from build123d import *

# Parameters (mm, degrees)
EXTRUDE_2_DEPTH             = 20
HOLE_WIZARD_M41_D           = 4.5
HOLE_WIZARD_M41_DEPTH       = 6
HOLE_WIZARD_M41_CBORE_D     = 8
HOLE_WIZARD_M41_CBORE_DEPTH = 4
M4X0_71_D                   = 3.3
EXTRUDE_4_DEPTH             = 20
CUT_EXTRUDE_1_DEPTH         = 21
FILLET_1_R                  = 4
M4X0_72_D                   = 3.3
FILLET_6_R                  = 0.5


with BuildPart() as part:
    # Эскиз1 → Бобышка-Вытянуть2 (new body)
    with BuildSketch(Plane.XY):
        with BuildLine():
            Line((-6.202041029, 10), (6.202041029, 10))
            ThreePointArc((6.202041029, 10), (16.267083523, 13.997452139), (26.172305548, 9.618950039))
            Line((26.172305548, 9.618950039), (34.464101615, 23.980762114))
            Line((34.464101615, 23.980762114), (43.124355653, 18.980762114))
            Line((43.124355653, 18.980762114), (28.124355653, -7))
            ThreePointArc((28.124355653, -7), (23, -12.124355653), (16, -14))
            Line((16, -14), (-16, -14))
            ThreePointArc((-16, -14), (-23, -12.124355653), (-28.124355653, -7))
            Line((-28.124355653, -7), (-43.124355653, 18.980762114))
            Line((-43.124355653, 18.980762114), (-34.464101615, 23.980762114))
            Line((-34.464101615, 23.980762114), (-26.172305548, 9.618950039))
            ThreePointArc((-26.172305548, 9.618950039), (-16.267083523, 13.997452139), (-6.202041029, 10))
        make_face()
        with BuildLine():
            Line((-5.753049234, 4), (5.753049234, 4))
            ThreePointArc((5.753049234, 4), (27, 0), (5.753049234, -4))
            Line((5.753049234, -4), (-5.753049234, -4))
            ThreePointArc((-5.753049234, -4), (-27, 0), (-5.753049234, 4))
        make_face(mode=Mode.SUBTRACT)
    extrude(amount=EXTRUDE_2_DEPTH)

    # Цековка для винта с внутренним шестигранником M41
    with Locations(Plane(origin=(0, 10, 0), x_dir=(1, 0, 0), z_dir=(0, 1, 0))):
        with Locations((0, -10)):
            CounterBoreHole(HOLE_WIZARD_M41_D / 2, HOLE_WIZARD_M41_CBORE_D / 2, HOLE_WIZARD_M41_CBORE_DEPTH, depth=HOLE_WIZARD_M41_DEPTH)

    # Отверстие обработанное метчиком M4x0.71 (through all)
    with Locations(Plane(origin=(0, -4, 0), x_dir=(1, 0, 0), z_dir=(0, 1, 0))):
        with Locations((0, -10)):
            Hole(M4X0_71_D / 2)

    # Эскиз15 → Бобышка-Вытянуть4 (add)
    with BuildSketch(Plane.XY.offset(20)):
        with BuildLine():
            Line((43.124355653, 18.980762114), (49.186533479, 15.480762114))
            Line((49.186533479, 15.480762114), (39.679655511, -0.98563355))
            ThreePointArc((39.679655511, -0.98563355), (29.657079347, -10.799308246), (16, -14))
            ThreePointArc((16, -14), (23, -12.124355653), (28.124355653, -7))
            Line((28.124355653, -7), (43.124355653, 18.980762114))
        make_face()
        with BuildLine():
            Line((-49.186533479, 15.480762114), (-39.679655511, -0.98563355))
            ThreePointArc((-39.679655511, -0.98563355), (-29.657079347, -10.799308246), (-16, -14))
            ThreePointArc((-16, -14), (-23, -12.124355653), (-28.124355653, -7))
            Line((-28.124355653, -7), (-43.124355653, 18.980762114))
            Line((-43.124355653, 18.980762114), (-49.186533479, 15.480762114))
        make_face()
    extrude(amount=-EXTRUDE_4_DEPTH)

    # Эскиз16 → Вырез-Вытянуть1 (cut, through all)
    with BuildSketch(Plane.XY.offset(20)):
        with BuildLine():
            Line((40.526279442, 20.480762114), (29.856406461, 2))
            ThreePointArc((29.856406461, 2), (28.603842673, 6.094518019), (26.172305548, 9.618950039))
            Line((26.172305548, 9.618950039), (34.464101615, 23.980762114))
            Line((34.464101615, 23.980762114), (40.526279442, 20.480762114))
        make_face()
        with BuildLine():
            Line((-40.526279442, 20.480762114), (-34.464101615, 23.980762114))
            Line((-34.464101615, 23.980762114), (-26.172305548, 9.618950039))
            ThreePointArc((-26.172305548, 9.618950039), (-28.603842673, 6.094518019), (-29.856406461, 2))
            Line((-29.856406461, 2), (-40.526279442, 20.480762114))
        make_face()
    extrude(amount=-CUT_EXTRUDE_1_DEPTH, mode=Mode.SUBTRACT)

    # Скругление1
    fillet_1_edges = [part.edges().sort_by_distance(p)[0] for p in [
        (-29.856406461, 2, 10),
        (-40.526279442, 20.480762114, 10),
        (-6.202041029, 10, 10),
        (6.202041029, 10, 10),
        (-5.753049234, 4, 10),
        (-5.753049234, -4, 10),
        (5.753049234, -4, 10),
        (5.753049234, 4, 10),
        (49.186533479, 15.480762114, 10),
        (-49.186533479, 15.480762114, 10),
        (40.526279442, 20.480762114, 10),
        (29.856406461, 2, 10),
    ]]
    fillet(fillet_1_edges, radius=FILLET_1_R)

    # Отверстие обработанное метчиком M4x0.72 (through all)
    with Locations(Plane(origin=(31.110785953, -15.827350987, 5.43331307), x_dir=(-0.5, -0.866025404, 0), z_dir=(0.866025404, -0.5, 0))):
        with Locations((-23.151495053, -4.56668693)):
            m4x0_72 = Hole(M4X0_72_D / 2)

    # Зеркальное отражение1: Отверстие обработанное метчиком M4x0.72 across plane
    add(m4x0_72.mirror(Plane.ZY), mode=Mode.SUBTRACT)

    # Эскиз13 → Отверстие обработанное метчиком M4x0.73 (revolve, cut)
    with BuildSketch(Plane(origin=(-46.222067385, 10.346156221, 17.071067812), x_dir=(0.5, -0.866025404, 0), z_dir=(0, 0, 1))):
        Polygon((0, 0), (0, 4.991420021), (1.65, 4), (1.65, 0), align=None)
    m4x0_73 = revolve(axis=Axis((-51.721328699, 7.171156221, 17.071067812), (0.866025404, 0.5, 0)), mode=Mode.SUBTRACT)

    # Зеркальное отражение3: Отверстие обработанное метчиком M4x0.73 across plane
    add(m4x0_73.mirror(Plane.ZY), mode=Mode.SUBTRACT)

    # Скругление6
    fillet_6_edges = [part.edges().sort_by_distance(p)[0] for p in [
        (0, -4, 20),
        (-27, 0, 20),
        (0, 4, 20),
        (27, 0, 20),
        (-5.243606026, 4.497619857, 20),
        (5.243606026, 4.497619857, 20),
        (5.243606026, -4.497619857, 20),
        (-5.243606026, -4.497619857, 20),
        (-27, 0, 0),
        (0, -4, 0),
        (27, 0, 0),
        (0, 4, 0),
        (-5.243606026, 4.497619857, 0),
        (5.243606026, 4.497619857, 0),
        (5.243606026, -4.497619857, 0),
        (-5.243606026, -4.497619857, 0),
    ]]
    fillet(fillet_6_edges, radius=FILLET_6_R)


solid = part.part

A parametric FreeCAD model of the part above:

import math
import FreeCAD as App
import Part
import Sketcher
from FreeCAD import Vector
Q = App.Units.Quantity


def edges_at(feature, points):
    """Names of the edges that pass closest to the given points."""
    edges = feature.Shape.Edges
    near = lambda p: min(range(len(edges)), key=lambda i: edges[i].distToShape(Part.Vertex(*p))[0])
    return sorted({f"Edge{near(p) + 1}" for p in points})


def add_polygon(sketch, points):
    """Adds a closed chain of lines whose ends are joined by coincident constraints."""
    first, n = sketch.GeometryCount, len(points)
    for a, b in zip(points, points[1:] + points[:1]):
        sketch.addGeometry(Part.LineSegment(App.Vector(*a, 0), App.Vector(*b, 0)), False)
    for i in range(n):
        sketch.addConstraint(Sketcher.Constraint("Coincident", first + i, 2, first + (i + 1) % n, 1))

doc = App.newDocument("Part")
body = doc.addObject("PartDesign::Body", "Body")

# Sketch on XY plane
sketch1 = doc.addObject("Sketcher::SketchObject", "Sketch")
body.addObject(sketch1)
sketch1.AttachmentSupport = (doc.XY_Plane, [""])
sketch1.MapMode = "FlatFace"
sketch1.addGeometry([
    Part.LineSegment(Vector(6, 10, 0), Vector(-6, 10, 0)),  # 0
    Part.ArcOfCircle(Part.Circle(Vector(-16, 0, 0), Vector(0, 0, 1), 14), math.radians(46), math.radians(137)),  # 1
    Part.LineSegment(Vector(-26, 10, 0), Vector(-34, 24, 0)),  # 2
    Part.LineSegment(Vector(-34, 24, 0), Vector(-43, 19, 0)),  # 3
    Part.LineSegment(Vector(-43, 19, 0), Vector(-28, -7, 0)),  # 4
    Part.ArcOfCircle(Part.Circle(Vector(-16, 0, 0), Vector(0, 0, 1), 14), math.radians(-150), math.radians(-90)),  # 5
    Part.LineSegment(Vector(-16, -14, 0), Vector(16, -14, 0)),  # 6
    Part.ArcOfCircle(Part.Circle(Vector(16, 0, 0), Vector(0, 0, 1), 14), math.radians(-90), math.radians(-30)),  # 7
    Part.LineSegment(Vector(28, -7, 0), Vector(43, 19, 0)),  # 8
    Part.LineSegment(Vector(43, 19, 0), Vector(34, 24, 0)),  # 9
    Part.LineSegment(Vector(34, 24, 0), Vector(26, 10, 0)),  # 10
    Part.ArcOfCircle(Part.Circle(Vector(16, 0, 0), Vector(0, 0, 1), 14), math.radians(43), math.radians(134)),  # 11
    Part.LineSegment(Vector(-6, 4, 0), Vector(6, 4, 0)),  # 12
    Part.ArcOfCircle(Part.Circle(Vector(16, 0, 0), Vector(0, 0, 1), 11), math.radians(-159), math.radians(159)),  # 13
    Part.LineSegment(Vector(6, -4, 0), Vector(-6, -4, 0)),  # 14
    Part.ArcOfCircle(Part.Circle(Vector(-16, 0, 0), Vector(0, 0, 1), 11), math.radians(21), math.radians(339)),  # 15
], False)
sketch1.addConstraint([
    Sketcher.Constraint("Coincident", 0, 2, 1, 1),
    Sketcher.Constraint("Coincident", 1, 2, 2, 1),
    Sketcher.Constraint("Coincident", 2, 2, 3, 1),
    Sketcher.Constraint("Coincident", 3, 2, 4, 1),
    Sketcher.Constraint("Tangent", 4, 2, 5, 1),
    Sketcher.Constraint("Tangent", 5, 2, 6, 1),
    Sketcher.Constraint("Tangent", 6, 2, 7, 1),
    Sketcher.Constraint("Tangent", 7, 2, 8, 1),
    Sketcher.Constraint("Coincident", 8, 2, 9, 1),
    Sketcher.Constraint("Coincident", 9, 2, 10, 1),
    Sketcher.Constraint("Coincident", 10, 2, 11, 1),
    Sketcher.Constraint("Coincident", 11, 2, 0, 1),
    Sketcher.Constraint("Coincident", 12, 2, 13, 2),
    Sketcher.Constraint("Coincident", 13, 1, 14, 1),
    Sketcher.Constraint("Coincident", 14, 2, 15, 2),
    Sketcher.Constraint("Coincident", 15, 1, 12, 1),
    Sketcher.Constraint("Horizontal", 0),
    Sketcher.Constraint("Horizontal", 6),
    Sketcher.Constraint("Horizontal", 12),
    Sketcher.Constraint("Horizontal", 14),
    Sketcher.Constraint("Coincident", 5, 3, 1, 3),
    Sketcher.Constraint("Coincident", 11, 3, 7, 3),
    Sketcher.Constraint("Coincident", 13, 3, 7, 3),
    Sketcher.Constraint("Coincident", 15, 3, 1, 3),
    Sketcher.Constraint("Equal", 1, 5),
    Sketcher.Constraint("Equal", 5, 7),
    Sketcher.Constraint("Equal", 7, 11),
    Sketcher.Constraint("Equal", 13, 15),
    Sketcher.Constraint("Symmetric", 1, 3, 7, 3, -1, 1),
    Sketcher.Constraint("Symmetric", 3, 2, 8, 2, -2),
    Sketcher.Constraint("Symmetric", 2, 2, 9, 2, -2),
    Sketcher.Constraint("Perpendicular", 2, 3),
    Sketcher.Constraint("Perpendicular", 3, 4),
    Sketcher.Constraint("Perpendicular", 9, 10),
    Sketcher.Constraint("Vertical", 12, 2, 13, 1),
    Sketcher.Constraint("Radius", 1, Q("14 mm")),
    Sketcher.Constraint("Radius", 13, Q("11 mm")),
    Sketcher.Constraint("DistanceX", 6, 1, 6, 2, Q("32 mm")),
    Sketcher.Constraint("Angle", 2, Q("120 deg")),
    Sketcher.Constraint("Distance", 3, Q("10 mm")),
    Sketcher.Constraint("Distance", 4, Q("30 mm")),
    Sketcher.Constraint("DistanceY", -1, 1, 0, 2, Q("10 mm")),
    Sketcher.Constraint("DistanceY", -1, 1, 12, 2, Q("4 mm")),
])
pad1 = doc.addObject("PartDesign::Pad", "Pad")
body.addObject(pad1)
pad1.Profile = sketch1
pad1.Length = 20

# Sketch on XZ plane
sketch2 = doc.addObject("Sketcher::SketchObject", "Sketch001")
body.addObject(sketch2)
sketch2.AttachmentSupport = (doc.XZ_Plane, [""])
sketch2.MapMode = "FlatFace"
sketch2.AttachmentOffset = App.Placement(Vector(0, 0, -10), App.Rotation())
sketch2.addGeometry(Part.Circle(Vector(0, 10, 0), Vector(0, 0, 1), 2.2), False)
sketch2.addConstraint([
    Sketcher.Constraint("PointOnObject", 0, 3, -2),
    Sketcher.Constraint("Diameter", 0, Q("4.5 mm")),
    Sketcher.Constraint("DistanceY", -1, 1, 0, 3, Q("10 mm")),
])
doc.recompute()
hole = doc.addObject("PartDesign::Hole", "Hole")
body.addObject(hole)
hole.Profile = sketch2
hole.ThreadType = "None"
hole.Diameter = 4.5
hole.DepthType = "Dimension"
hole.Depth = 6
hole.DrillPoint = "Flat"
hole.HoleCutType = "Counterbore"
hole.HoleCutDiameter = 8
hole.HoleCutDepth = 4
hole.Reversed = True

# Sketch on XZ plane
sketch3 = doc.addObject("Sketcher::SketchObject", "Sketch002")
body.addObject(sketch3)
sketch3.AttachmentSupport = (doc.XZ_Plane, [""])
sketch3.MapMode = "FlatFace"
sketch3.AttachmentOffset = App.Placement(Vector(0, 0, 4), App.Rotation())
sketch3.addGeometry(Part.Circle(Vector(0, 10, 0), Vector(0, 0, 1), 1.6), False)
sketch3.addConstraint([
    Sketcher.Constraint("PointOnObject", 0, 3, -2),
    Sketcher.Constraint("Diameter", 0, Q("3.3 mm")),
    Sketcher.Constraint("DistanceY", -1, 1, 0, 3, Q("10 mm")),
])
doc.recompute()
hole2 = doc.addObject("PartDesign::Hole", "Hole001")
body.addObject(hole2)
hole2.Profile = sketch3
hole2.ThreadType = "None"
hole2.Diameter = 3.3
hole2.DepthType = "ThroughAll"
hole2.Reversed = True

# Sketch on XY plane
sketch4 = doc.addObject("Sketcher::SketchObject", "Sketch003")
body.addObject(sketch4)
sketch4.AttachmentSupport = (doc.XY_Plane, [""])
sketch4.MapMode = "FlatFace"
sketch4.AttachmentOffset = App.Placement(Vector(0, 0, 20), App.Rotation())
sketch4.addGeometry([
    Part.LineSegment(Vector(49, 15, 0), Vector(43, 19, 0)),  # 0
    Part.LineSegment(Vector(43, 19, 0), Vector(28, -7, 0)),  # 1
    Part.ArcOfCircle(Part.Circle(Vector(16, 0, 0), Vector(0, 0, 1), 14), math.radians(-90), math.radians(-30)),  # 2
    Part.ArcOfCircle(Part.Circle(Vector(17, 12, 0), Vector(0, 0, 1), 26), math.radians(-92), math.radians(-30)),  # 3
    Part.LineSegment(Vector(40, -1, 0), Vector(49, 15, 0)),  # 4
    Part.LineSegment(Vector(-49, 15, 0), Vector(-40, -1, 0)),  # 5
    Part.ArcOfCircle(Part.Circle(Vector(-17, 12, 0), Vector(0, 0, 1), 26), math.radians(-150), math.radians(-88)),  # 6
    Part.ArcOfCircle(Part.Circle(Vector(-16, 0, 0), Vector(0, 0, 1), 14), math.radians(-150), math.radians(-90)),  # 7
    Part.LineSegment(Vector(-28, -7, 0), Vector(-43, 19, 0)),  # 8
    Part.LineSegment(Vector(-43, 19, 0), Vector(-49, 15, 0)),  # 9
], False)
sketch4.addConstraint([
    Sketcher.Constraint("Coincident", 0, 2, 1, 1),
    Sketcher.Constraint("Tangent", 1, 2, 2, 2),
    Sketcher.Constraint("Coincident", 2, 1, 3, 1),
    Sketcher.Constraint("Tangent", 3, 2, 4, 1),
    Sketcher.Constraint("Coincident", 4, 2, 0, 1),
    Sketcher.Constraint("Tangent", 5, 2, 6, 1),
    Sketcher.Constraint("Coincident", 6, 2, 7, 2),
    Sketcher.Constraint("Tangent", 7, 1, 8, 1),
    Sketcher.Constraint("Coincident", 8, 2, 9, 1),
    Sketcher.Constraint("Coincident", 9, 2, 5, 1),
    Sketcher.Constraint("Equal", 3, 6),
    Sketcher.Constraint("Equal", 2, 7),
    Sketcher.Constraint("Symmetric", 2, 3, 7, 3, -1, 1),
    Sketcher.Constraint("Symmetric", 3, 3, 6, 3, -2),
    Sketcher.Constraint("Symmetric", 1, 2, 7, 1, -2),
    Sketcher.Constraint("Symmetric", 4, 2, 9, 2, -2),
    Sketcher.Constraint("Perpendicular", 0, 1),
    Sketcher.Constraint("Parallel", 1, 4),
    Sketcher.Constraint("Perpendicular", 8, 9),
    Sketcher.Constraint("Vertical", 7, 3, 6, 2),
    Sketcher.Constraint("Radius", 2, Q("14 mm")),
    Sketcher.Constraint("Angle", 0, Q("150 deg")),
    Sketcher.Constraint("Distance", 0, Q("7 mm")),
    Sketcher.Constraint("Distance", 1, Q("30 mm")),
    Sketcher.Constraint("DistanceX", -1, 1, 2, 3, Q("16 mm")),
    Sketcher.Constraint("Radius", 3, Q("26.074994 mm")),
])
pad2 = doc.addObject("PartDesign::Pad", "Pad001")
body.addObject(pad2)
pad2.Profile = sketch4
pad2.Length = 20
pad2.Reversed = True

# Sketch on XY plane
sketch5 = doc.addObject("Sketcher::SketchObject", "Sketch004")
body.addObject(sketch5)
sketch5.AttachmentSupport = (doc.XY_Plane, [""])
sketch5.MapMode = "FlatFace"
sketch5.AttachmentOffset = App.Placement(Vector(0, 0, 20), App.Rotation())
sketch5.addGeometry([
    Part.LineSegment(Vector(30, 2, 0), Vector(41, 20, 0)),  # 0
    Part.LineSegment(Vector(41, 20, 0), Vector(34, 24, 0)),  # 1
    Part.LineSegment(Vector(34, 24, 0), Vector(26, 10, 0)),  # 2
    Part.ArcOfCircle(Part.Circle(Vector(16, 0, 0), Vector(0, 0, 1), 14), math.radians(8), math.radians(43)),  # 3
    Part.LineSegment(Vector(-34, 24, 0), Vector(-41, 20, 0)),  # 4
    Part.LineSegment(Vector(-41, 20, 0), Vector(-30, 2, 0)),  # 5
    Part.ArcOfCircle(Part.Circle(Vector(-16, 0, 0), Vector(0, 0, 1), 14), math.radians(137), math.radians(172)),  # 6
    Part.LineSegment(Vector(-26, 10, 0), Vector(-34, 24, 0)),  # 7
], False)
sketch5.addConstraint([
    Sketcher.Constraint("Coincident", 0, 2, 1, 1),
    Sketcher.Constraint("Coincident", 1, 2, 2, 1),
    Sketcher.Constraint("Coincident", 2, 2, 3, 2),
    Sketcher.Constraint("Coincident", 3, 1, 0, 1),
    Sketcher.Constraint("Coincident", 4, 2, 5, 1),
    Sketcher.Constraint("Coincident", 5, 2, 6, 2),
    Sketcher.Constraint("Coincident", 6, 1, 7, 1),
    Sketcher.Constraint("Coincident", 7, 2, 4, 1),
    Sketcher.Constraint("Equal", 3, 6),
    Sketcher.Constraint("Symmetric", 3, 3, 6, 3, -1, 1),
    Sketcher.Constraint("Symmetric", 0, 2, 4, 2, -2),
    Sketcher.Constraint("Symmetric", 3, 1, 5, 2, -2),
    Sketcher.Constraint("Symmetric", 1, 2, 7, 2, -2),
    Sketcher.Constraint("Perpendicular", 0, 1),
    Sketcher.Constraint("Perpendicular", 1, 2),
    Sketcher.Constraint("Parallel", 5, 7),
    Sketcher.Constraint("Radius", 3, Q("14 mm")),
    Sketcher.Constraint("Angle", 0, Q("60 deg")),
    Sketcher.Constraint("Distance", 1, Q("7 mm")),
    Sketcher.Constraint("DistanceX", -1, 1, 3, 3, Q("16 mm")),
    Sketcher.Constraint("DistanceY", -1, 1, 3, 1, Q("2 mm")),
    Sketcher.Constraint("DistanceX", -1, 1, 1, 2, Q("34.464102 mm")),
])
pocket1 = doc.addObject("PartDesign::Pocket", "Pocket")
body.addObject(pocket1)
pocket1.Profile = sketch5
pocket1.Type = "ThroughAll"
doc.recompute()

fillet = doc.addObject("PartDesign::Fillet", "Fillet")
body.addObject(fillet)
fillet.Base = (pocket1, edges_at(pocket1, [
    (-29.856, 2, 10),
    (-40.526, 20.481, 10),
    (-6.202, 10, 10),
    (6.202, 10, 10),
    (-5.753, 4, 10),
    (-5.753, -4, 10),
    (5.753, -4, 10),
    (5.753, 4, 10),
    (49.187, 15.481, 10),
    (-49.187, 15.481, 10),
    (40.526, 20.481, 10),
    (29.856, 2, 10),
]))
fillet.Radius = 4

# Sketch on an angled plane
sketch6 = doc.addObject("Sketcher::SketchObject", "Sketch005")
body.addObject(sketch6)
sketch6.Placement = App.Placement(Vector(30.186533, -17.428203, 0), App.Rotation(Vector(-0.5, -0.866025404, 0), Vector(0, 0, -1), Vector(0.866025404, -0.5, 0), "ZXY"))
sketch6.addGeometry(Part.Circle(Vector(-25, -10, 0), Vector(0, 0, 1), 1.6), False)
sketch6.addConstraint([
    Sketcher.Constraint("Diameter", 0, Q("3.3 mm")),
    Sketcher.Constraint("DistanceX", 0, 3, -1, 1, Q("25 mm")),
    Sketcher.Constraint("DistanceY", 0, 3, -1, 1, Q("10 mm")),
])
doc.recompute()
hole3 = doc.addObject("PartDesign::Hole", "Hole002")
body.addObject(hole3)
hole3.Profile = sketch6
hole3.ThreadType = "None"
hole3.Diameter = 3.3
hole3.DepthType = "ThroughAll"
doc.recompute()

mirrored = doc.addObject("PartDesign::Mirrored", "Mirrored")
body.addObject(mirrored)
mirrored.Originals = [hole3]
mirrored.MirrorPlane = (doc.YZ_Plane, [""])
body.Tip = mirrored

# Sketch on XY plane
sketch7 = doc.addObject("Sketcher::SketchObject", "Sketch006")
body.addObject(sketch7)
sketch7.AttachmentSupport = (doc.XY_Plane, [""])
sketch7.MapMode = "FlatFace"
sketch7.AttachmentOffset = App.Placement(Vector(0, 0, 17.071068), App.Rotation())
add_polygon(sketch7, [(-41.9, 12.8), (-46.2, 10.3), (-45.4, 8.9), (-41.9, 10.9)])  # lines 0-3
sketch7.addGeometry(Part.LineSegment(Vector(-46.2, 10.3, 0), Vector(-41.9, 12.8, 0)), True)  # axis
sketch7.addConstraint([
    Sketcher.Constraint("Coincident", 4, 1, 0, 2),
    Sketcher.Constraint("Coincident", 4, 2, 3, 2),
    Sketcher.Constraint("Perpendicular", 0, 1),
    Sketcher.Constraint("Perpendicular", 1, 2),
    Sketcher.Constraint("Angle", 0, Q("-150 deg")),
    Sketcher.Constraint("Angle", 3, Q("89 deg")),
    Sketcher.Constraint("Distance", 2, Q("4 mm")),
    Sketcher.Constraint("Distance", 1, Q("1.65 mm")),
    Sketcher.Constraint("DistanceX", 3, 2, -1, 1, Q("41.899371 mm")),
    Sketcher.Constraint("DistanceY", -1, 1, 0, 2, Q("10.346156 mm")),
])
groove = doc.addObject("PartDesign::Groove", "Groove")
body.addObject(groove)
groove.Profile = sketch7
groove.ReferenceAxis = (sketch7, ["Axis0"])
groove.Angle = 360
doc.recompute()

mirrored2 = doc.addObject("PartDesign::Mirrored", "Mirrored001")
body.addObject(mirrored2)
mirrored2.Originals = [groove]
mirrored2.MirrorPlane = (doc.YZ_Plane, [""])
body.Tip = mirrored2
doc.recompute()

fillet2 = doc.addObject("PartDesign::Fillet", "Fillet001")
body.addObject(fillet2)
fillet2.Base = (mirrored2, edges_at(mirrored2, [
    (0, -4, 20),
    (-27, 0, 20),
    (0, 4, 20),
    (27, 0, 20),
    (-5.244, 4.498, 20),
    (5.244, 4.498, 20),
    (5.244, -4.498, 20),
    (-5.244, -4.498, 20),
    (-27, 0, 0),
    (0, -4, 0),
    (27, 0, 0),
    (0, 4, 0),
    (-5.244, 4.498, 0),
    (5.244, 4.498, 0),
    (5.244, -4.498, 0),
    (-5.244, -4.498, 0),
]))
fillet2.Radius = 0.5

doc.recompute()
